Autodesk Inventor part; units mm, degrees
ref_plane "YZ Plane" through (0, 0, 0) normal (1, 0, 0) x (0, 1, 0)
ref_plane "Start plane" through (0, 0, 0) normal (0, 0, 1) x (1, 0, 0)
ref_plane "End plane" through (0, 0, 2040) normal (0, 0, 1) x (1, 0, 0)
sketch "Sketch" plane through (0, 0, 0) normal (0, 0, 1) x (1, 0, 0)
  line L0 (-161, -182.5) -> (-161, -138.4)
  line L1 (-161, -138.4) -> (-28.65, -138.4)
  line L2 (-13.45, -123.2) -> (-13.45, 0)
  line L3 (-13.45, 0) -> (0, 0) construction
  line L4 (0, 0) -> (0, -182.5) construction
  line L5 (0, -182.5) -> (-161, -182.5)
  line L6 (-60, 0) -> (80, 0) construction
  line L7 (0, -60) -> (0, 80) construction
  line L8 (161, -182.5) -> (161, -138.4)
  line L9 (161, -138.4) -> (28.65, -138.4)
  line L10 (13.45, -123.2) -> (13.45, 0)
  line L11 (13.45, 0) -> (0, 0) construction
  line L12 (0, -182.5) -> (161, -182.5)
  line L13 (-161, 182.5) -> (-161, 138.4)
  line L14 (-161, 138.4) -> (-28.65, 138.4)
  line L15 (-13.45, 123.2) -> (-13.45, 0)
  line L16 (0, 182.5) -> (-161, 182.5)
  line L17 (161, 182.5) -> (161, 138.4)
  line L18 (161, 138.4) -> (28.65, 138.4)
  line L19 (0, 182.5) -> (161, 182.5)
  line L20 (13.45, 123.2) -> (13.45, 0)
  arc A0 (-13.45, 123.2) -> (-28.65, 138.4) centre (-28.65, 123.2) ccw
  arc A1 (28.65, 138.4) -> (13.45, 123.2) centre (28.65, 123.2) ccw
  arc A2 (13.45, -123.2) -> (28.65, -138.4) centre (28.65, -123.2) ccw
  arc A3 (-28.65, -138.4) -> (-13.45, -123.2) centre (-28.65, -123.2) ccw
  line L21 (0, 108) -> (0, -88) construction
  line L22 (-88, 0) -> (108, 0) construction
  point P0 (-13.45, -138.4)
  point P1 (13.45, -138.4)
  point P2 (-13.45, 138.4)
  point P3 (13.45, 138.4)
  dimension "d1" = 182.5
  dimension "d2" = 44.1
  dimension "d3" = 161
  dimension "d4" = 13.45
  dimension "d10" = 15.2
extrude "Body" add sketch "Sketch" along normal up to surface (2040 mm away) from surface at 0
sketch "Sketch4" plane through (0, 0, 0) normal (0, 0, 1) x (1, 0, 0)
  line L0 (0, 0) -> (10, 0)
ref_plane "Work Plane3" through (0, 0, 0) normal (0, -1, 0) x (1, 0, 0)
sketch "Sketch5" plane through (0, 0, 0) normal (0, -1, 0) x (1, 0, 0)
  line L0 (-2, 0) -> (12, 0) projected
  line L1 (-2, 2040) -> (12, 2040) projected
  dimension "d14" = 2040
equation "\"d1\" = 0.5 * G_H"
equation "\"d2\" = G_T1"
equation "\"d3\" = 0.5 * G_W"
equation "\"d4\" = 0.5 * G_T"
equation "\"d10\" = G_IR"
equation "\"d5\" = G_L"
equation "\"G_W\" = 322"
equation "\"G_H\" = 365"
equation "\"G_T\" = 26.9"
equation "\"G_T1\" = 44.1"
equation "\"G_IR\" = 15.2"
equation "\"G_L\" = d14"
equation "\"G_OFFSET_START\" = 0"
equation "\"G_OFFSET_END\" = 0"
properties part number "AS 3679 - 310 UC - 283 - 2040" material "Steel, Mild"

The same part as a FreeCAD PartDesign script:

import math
import FreeCAD as App
import Part
import Sketcher
from FreeCAD import Vector

doc = App.newDocument("Part")
body = doc.addObject("PartDesign::Body", "Body")

# Sketch on XY plane
sketch1 = doc.addObject("Sketcher::SketchObject", "Sketch")
body.addObject(sketch1)
sketch1.AttachmentSupport = (doc.XY_Plane, [""])
sketch1.MapMode = "FlatFace"
sketch1.addGeometry(Part.LineSegment(Vector(-161, -138, 0), Vector(-161, -182, 0)), False)
sketch1.addGeometry(Part.LineSegment(Vector(-161, -182, 0), Vector(161, -182, 0)), False)
sketch1.addGeometry(Part.LineSegment(Vector(161, -182, 0), Vector(161, -138, 0)), False)
sketch1.addGeometry(Part.LineSegment(Vector(161, -138, 0), Vector(29, -138, 0)), False)
sketch1.addGeometry(Part.ArcOfCircle(Part.Circle(Vector(29, -123, 0), Vector(0, 0, 1), 15), math.radians(180), math.radians(270)), False)
sketch1.addGeometry(Part.LineSegment(Vector(13, -123, 0), Vector(13, 123, 0)), False)
sketch1.addGeometry(Part.ArcOfCircle(Part.Circle(Vector(29, 123, 0), Vector(0, 0, 1), 15), math.radians(90), math.radians(180)), False)
sketch1.addGeometry(Part.LineSegment(Vector(29, 138, 0), Vector(161, 138, 0)), False)
sketch1.addGeometry(Part.LineSegment(Vector(161, 138, 0), Vector(161, 182, 0)), False)
sketch1.addGeometry(Part.LineSegment(Vector(161, 182, 0), Vector(-161, 182, 0)), False)
sketch1.addGeometry(Part.LineSegment(Vector(-161, 182, 0), Vector(-161, 138, 0)), False)
sketch1.addGeometry(Part.LineSegment(Vector(-161, 138, 0), Vector(-29, 138, 0)), False)
sketch1.addGeometry(Part.ArcOfCircle(Part.Circle(Vector(-29, 123, 0), Vector(0, 0, 1), 15), math.radians(0), math.radians(90)), False)
sketch1.addGeometry(Part.LineSegment(Vector(-13, 123, 0), Vector(-13, -123, 0)), False)
sketch1.addGeometry(Part.ArcOfCircle(Part.Circle(Vector(-29, -123, 0), Vector(0, 0, 1), 15), math.radians(-90), math.radians(0)), False)
sketch1.addGeometry(Part.LineSegment(Vector(-29, -138, 0), Vector(-161, -138, 0)), False)
sketch1.addConstraint(Sketcher.Constraint("Coincident", 0, 2, 1, 1))
sketch1.addConstraint(Sketcher.Constraint("Coincident", 1, 2, 2, 1))
sketch1.addConstraint(Sketcher.Constraint("Coincident", 2, 2, 3, 1))
sketch1.addConstraint(Sketcher.Constraint("Tangent", 3, 2, 4, 2))
sketch1.addConstraint(Sketcher.Constraint("Tangent", 4, 1, 5, 1))
sketch1.addConstraint(Sketcher.Constraint("Tangent", 5, 2, 6, 2))
sketch1.addConstraint(Sketcher.Constraint("Tangent", 6, 1, 7, 1))
sketch1.addConstraint(Sketcher.Constraint("Coincident", 7, 2, 8, 1))
sketch1.addConstraint(Sketcher.Constraint("Coincident", 8, 2, 9, 1))
sketch1.addConstraint(Sketcher.Constraint("Coincident", 9, 2, 10, 1))
sketch1.addConstraint(Sketcher.Constraint("Coincident", 10, 2, 11, 1))
sketch1.addConstraint(Sketcher.Constraint("Tangent", 11, 2, 12, 2))
sketch1.addConstraint(Sketcher.Constraint("Tangent", 12, 1, 13, 1))
sketch1.addConstraint(Sketcher.Constraint("Tangent", 13, 2, 14, 2))
sketch1.addConstraint(Sketcher.Constraint("Tangent", 14, 1, 15, 1))
sketch1.addConstraint(Sketcher.Constraint("Coincident", 15, 2, 0, 1))
sketch1.addConstraint(Sketcher.Constraint("Vertical", 0))
sketch1.addConstraint(Sketcher.Constraint("Horizontal", 1))
sketch1.addConstraint(Sketcher.Constraint("Vertical", 2))
sketch1.addConstraint(Sketcher.Constraint("Horizontal", 3))
sketch1.addConstraint(Sketcher.Constraint("Vertical", 5))
sketch1.addConstraint(Sketcher.Constraint("Horizontal", 7))
sketch1.addConstraint(Sketcher.Constraint("Vertical", 8))
sketch1.addConstraint(Sketcher.Constraint("Horizontal", 9))
sketch1.addConstraint(Sketcher.Constraint("Vertical", 10))
sketch1.addConstraint(Sketcher.Constraint("Horizontal", 11))
sketch1.addConstraint(Sketcher.Constraint("Vertical", 13))
sketch1.addConstraint(Sketcher.Constraint("Horizontal", 15))
sketch1.addConstraint(Sketcher.Constraint("Equal", 4, 6))
sketch1.addConstraint(Sketcher.Constraint("Equal", 6, 12))
sketch1.addConstraint(Sketcher.Constraint("Equal", 12, 14))
sketch1.addConstraint(Sketcher.Constraint("Symmetric", 4, 3, 12, 3, -1, 1))
sketch1.addConstraint(Sketcher.Constraint("Symmetric", 0, 2, 8, 2, -1, 1))
sketch1.addConstraint(Sketcher.Constraint("Symmetric", 7, 2, 10, 2, -2))
sketch1.addConstraint(Sketcher.Constraint("Symmetric", 2, 2, 15, 2, -2))
sketch1.addConstraint(Sketcher.Constraint("Radius", 4, 15.2))
sketch1.addConstraint(Sketcher.Constraint("DistanceY", 0, 2, 0, 1, 44.1))
sketch1.addConstraint(Sketcher.Constraint("DistanceX", 0, 2, -1, 1, 161.0))
sketch1.addConstraint(Sketcher.Constraint("DistanceY", 0, 2, -1, 1, 182.5))
sketch1.addConstraint(Sketcher.Constraint("DistanceX", -1, 1, 4, 1, 13.45))
pad1 = doc.addObject("PartDesign::Pad", "Pad")
body.addObject(pad1)
pad1.Profile = sketch1
pad1.Length = 2040

doc.recompute()
